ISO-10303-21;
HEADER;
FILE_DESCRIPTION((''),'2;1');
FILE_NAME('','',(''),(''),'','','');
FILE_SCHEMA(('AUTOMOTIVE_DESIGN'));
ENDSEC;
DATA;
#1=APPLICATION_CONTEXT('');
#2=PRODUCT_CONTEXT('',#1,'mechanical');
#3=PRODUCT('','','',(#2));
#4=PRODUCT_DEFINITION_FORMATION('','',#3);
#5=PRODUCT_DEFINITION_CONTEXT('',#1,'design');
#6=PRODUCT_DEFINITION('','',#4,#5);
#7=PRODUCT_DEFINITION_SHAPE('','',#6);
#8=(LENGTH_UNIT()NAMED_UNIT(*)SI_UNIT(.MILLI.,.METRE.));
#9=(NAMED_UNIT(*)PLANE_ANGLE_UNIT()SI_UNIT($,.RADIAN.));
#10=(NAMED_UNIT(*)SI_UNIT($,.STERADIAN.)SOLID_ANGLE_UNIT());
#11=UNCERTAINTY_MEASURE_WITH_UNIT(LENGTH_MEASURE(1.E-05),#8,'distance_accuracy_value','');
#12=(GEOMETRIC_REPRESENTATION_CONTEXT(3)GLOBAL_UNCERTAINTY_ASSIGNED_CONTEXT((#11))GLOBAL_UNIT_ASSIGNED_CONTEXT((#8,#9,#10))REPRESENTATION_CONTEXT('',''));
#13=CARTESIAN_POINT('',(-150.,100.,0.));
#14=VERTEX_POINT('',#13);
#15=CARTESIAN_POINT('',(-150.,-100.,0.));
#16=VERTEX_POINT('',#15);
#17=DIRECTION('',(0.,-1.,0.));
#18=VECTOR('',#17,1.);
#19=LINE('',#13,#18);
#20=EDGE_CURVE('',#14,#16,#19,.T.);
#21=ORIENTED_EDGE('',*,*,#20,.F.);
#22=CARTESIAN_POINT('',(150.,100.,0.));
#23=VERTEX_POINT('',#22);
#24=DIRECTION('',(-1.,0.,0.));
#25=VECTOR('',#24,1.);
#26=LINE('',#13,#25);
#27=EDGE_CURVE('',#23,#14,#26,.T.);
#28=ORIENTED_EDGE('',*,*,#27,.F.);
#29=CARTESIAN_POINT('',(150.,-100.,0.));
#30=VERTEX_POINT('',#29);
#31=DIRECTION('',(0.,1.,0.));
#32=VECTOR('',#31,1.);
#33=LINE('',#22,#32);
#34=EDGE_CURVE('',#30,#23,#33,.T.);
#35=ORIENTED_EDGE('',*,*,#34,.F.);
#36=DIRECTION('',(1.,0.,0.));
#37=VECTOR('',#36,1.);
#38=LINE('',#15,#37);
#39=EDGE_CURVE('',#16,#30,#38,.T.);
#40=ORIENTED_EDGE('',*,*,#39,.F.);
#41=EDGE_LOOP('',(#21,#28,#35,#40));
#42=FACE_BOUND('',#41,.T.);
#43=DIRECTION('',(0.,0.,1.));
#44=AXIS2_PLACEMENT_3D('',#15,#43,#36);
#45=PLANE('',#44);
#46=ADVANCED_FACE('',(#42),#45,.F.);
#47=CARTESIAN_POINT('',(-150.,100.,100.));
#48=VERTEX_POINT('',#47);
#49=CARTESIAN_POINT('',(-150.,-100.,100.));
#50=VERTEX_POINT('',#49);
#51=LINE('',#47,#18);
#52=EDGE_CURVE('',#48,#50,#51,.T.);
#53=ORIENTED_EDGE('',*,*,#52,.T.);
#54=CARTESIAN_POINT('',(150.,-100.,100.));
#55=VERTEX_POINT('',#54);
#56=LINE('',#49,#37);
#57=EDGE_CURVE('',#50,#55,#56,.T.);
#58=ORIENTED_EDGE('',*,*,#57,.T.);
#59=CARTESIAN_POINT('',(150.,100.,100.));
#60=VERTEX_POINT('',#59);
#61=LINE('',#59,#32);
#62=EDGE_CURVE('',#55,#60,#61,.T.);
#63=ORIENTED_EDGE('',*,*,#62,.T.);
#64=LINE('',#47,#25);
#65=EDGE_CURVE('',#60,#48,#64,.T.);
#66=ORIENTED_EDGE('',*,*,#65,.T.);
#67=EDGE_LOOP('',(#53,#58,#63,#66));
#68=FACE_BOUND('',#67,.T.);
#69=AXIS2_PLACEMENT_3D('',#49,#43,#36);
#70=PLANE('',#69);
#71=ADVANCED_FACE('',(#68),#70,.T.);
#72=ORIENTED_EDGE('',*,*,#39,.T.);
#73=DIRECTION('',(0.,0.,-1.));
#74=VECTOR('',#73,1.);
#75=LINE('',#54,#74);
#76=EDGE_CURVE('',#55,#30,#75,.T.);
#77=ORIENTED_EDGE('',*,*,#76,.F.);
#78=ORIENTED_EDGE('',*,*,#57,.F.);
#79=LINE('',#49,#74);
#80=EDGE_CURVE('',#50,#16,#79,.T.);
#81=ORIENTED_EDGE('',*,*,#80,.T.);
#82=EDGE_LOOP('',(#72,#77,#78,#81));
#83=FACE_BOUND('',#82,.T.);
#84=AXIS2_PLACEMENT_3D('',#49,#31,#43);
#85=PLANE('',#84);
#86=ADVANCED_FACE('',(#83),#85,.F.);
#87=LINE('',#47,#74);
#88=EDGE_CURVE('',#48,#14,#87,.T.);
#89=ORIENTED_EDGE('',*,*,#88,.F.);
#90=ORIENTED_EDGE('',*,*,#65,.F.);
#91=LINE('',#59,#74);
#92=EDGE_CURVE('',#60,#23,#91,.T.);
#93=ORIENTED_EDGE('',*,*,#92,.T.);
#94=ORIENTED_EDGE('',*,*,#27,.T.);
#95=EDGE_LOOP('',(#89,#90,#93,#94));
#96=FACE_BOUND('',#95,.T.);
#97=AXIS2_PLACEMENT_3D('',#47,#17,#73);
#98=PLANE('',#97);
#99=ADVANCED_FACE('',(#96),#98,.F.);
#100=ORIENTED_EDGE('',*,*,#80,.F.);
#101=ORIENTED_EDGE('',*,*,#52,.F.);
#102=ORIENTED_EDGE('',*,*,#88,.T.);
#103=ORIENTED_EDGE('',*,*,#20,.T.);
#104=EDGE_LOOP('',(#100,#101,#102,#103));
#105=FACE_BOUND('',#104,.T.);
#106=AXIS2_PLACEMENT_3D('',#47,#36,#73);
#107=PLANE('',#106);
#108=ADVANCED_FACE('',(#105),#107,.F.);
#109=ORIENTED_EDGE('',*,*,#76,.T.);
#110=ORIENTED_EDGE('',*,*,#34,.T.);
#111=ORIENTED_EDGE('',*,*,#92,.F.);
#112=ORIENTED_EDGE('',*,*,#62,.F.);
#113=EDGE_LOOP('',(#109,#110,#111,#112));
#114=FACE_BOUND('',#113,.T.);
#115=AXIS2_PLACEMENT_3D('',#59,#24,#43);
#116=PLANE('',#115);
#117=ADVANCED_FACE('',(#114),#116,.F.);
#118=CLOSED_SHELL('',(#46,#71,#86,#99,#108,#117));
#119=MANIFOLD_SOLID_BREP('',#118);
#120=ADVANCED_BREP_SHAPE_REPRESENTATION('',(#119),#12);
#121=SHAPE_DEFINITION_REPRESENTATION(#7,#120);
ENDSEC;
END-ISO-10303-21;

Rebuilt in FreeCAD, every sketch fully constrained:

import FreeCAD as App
import Part
import Sketcher
from FreeCAD import Vector

doc = App.newDocument("Part")
body = doc.addObject("PartDesign::Body", "Body")

# Sketch on XY plane
sketch1 = body.newObject("Sketcher::SketchObject", "Sketch")
sketch1.AttachmentSupport = (doc.getObject("XY_Plane"), [""])
sketch1.MapMode = "FlatFace"
sketch1.addGeometry(Part.LineSegment(Vector(-150, 100, 0), Vector(-150, -100, 0)), False)
sketch1.addGeometry(Part.LineSegment(Vector(-150, -100, 0), Vector(150, -100, 0)), False)
sketch1.addGeometry(Part.LineSegment(Vector(150, -100, 0), Vector(150, 100, 0)), False)
sketch1.addGeometry(Part.LineSegment(Vector(150, 100, 0), Vector(-150, 100, 0)), False)
sketch1.addConstraint(Sketcher.Constraint("Coincident", 0, 2, 1, 1))
sketch1.addConstraint(Sketcher.Constraint("Coincident", 1, 2, 2, 1))
sketch1.addConstraint(Sketcher.Constraint("Coincident", 2, 2, 3, 1))
sketch1.addConstraint(Sketcher.Constraint("Coincident", 3, 2, 0, 1))
sketch1.addConstraint(Sketcher.Constraint("Vertical", 0))
sketch1.addConstraint(Sketcher.Constraint("Horizontal", 1))
sketch1.addConstraint(Sketcher.Constraint("Vertical", 2))
sketch1.addConstraint(Sketcher.Constraint("Horizontal", 3))
sketch1.addConstraint(Sketcher.Constraint("Symmetric", 0, 2, 2, 2, -1, 1))
sketch1.addConstraint(Sketcher.Constraint("DistanceX", 1, 1, 1, 2, 300.0))
sketch1.addConstraint(Sketcher.Constraint("DistanceY", 0, 2, 0, 1, 200.0))
pad1 = body.newObject("PartDesign::Pad", "Pad")
pad1.Profile = sketch1
pad1.Length = 100

doc.recompute()
